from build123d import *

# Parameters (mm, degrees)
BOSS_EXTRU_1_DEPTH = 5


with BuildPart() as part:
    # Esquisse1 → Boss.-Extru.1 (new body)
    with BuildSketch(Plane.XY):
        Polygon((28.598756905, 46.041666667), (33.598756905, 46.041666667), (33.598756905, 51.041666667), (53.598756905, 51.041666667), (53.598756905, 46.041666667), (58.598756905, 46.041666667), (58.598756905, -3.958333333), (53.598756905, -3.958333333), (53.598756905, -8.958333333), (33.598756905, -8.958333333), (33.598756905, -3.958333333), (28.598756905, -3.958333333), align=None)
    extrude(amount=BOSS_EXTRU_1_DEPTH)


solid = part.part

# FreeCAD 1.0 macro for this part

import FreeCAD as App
import Part
import Sketcher


def add_polygon(sketch, points):
    """Adds a closed chain of lines whose ends are joined by coincident constraints."""
    first, n = sketch.GeometryCount, len(points)
    for a, b in zip(points, points[1:] + points[:1]):
        sketch.addGeometry(Part.LineSegment(App.Vector(*a, 0), App.Vector(*b, 0)), False)
    for i in range(n):
        sketch.addConstraint(Sketcher.Constraint("Coincident", first + i, 2, first + (i + 1) % n, 1))

doc = App.newDocument("Part")
body = doc.addObject("PartDesign::Body", "Body")

sketch1 = body.newObject("Sketcher::SketchObject", "Sketch")
sketch1.AttachmentSupport = (doc.getObject("XY_Plane"), [""])
sketch1.MapMode = "FlatFace"
add_polygon(sketch1, [(34, 46), (29, 46), (29, -4), (34, -4), (34, -9), (54, -9), (54, -4), (59, -4), (59, 46), (54, 46), (54, 51), (34, 51)])
sketch1.addConstraint([
    Sketcher.Constraint("Horizontal", 0),
    Sketcher.Constraint("Vertical", 1),
    Sketcher.Constraint("Horizontal", 2),
    Sketcher.Constraint("Vertical", 3),
    Sketcher.Constraint("Horizontal", 4),
    Sketcher.Constraint("Vertical", 5),
    Sketcher.Constraint("Horizontal", 6),
    Sketcher.Constraint("Vertical", 7),
    Sketcher.Constraint("Horizontal", 8),
    Sketcher.Constraint("Vertical", 9),
    Sketcher.Constraint("Horizontal", 10),
    Sketcher.Constraint("Vertical", 11),
    Sketcher.Constraint("Horizontal", 2, 2, 5, 2),
    Sketcher.Constraint("Horizontal", 0, 2, 7, 2),
    Sketcher.Constraint("Vertical", 5, 2, 8, 2),
    Sketcher.Constraint("Vertical", 3, 2, 10, 2),
    Sketcher.Constraint("Equal", 2, 6),
    Sketcher.Constraint("Equal", 8, 3),
    Sketcher.Constraint("Equal", 5, 9),
    Sketcher.Constraint("DistanceX", 0, 2, 0, 1, 5.0),
    Sketcher.Constraint("DistanceX", 4, 1, 4, 2, 20.0),
    Sketcher.Constraint("DistanceY", 1, 2, 1, 1, 50.0),
    Sketcher.Constraint("DistanceX", -1, 1, 0, 2, 28.598757),
    Sketcher.Constraint("DistanceY", -1, 1, 0, 2, 46.041667),
])
pad1 = body.newObject("PartDesign::Pad", "Pad")
pad1.Profile = sketch1
pad1.Length = 5

doc.recompute()
